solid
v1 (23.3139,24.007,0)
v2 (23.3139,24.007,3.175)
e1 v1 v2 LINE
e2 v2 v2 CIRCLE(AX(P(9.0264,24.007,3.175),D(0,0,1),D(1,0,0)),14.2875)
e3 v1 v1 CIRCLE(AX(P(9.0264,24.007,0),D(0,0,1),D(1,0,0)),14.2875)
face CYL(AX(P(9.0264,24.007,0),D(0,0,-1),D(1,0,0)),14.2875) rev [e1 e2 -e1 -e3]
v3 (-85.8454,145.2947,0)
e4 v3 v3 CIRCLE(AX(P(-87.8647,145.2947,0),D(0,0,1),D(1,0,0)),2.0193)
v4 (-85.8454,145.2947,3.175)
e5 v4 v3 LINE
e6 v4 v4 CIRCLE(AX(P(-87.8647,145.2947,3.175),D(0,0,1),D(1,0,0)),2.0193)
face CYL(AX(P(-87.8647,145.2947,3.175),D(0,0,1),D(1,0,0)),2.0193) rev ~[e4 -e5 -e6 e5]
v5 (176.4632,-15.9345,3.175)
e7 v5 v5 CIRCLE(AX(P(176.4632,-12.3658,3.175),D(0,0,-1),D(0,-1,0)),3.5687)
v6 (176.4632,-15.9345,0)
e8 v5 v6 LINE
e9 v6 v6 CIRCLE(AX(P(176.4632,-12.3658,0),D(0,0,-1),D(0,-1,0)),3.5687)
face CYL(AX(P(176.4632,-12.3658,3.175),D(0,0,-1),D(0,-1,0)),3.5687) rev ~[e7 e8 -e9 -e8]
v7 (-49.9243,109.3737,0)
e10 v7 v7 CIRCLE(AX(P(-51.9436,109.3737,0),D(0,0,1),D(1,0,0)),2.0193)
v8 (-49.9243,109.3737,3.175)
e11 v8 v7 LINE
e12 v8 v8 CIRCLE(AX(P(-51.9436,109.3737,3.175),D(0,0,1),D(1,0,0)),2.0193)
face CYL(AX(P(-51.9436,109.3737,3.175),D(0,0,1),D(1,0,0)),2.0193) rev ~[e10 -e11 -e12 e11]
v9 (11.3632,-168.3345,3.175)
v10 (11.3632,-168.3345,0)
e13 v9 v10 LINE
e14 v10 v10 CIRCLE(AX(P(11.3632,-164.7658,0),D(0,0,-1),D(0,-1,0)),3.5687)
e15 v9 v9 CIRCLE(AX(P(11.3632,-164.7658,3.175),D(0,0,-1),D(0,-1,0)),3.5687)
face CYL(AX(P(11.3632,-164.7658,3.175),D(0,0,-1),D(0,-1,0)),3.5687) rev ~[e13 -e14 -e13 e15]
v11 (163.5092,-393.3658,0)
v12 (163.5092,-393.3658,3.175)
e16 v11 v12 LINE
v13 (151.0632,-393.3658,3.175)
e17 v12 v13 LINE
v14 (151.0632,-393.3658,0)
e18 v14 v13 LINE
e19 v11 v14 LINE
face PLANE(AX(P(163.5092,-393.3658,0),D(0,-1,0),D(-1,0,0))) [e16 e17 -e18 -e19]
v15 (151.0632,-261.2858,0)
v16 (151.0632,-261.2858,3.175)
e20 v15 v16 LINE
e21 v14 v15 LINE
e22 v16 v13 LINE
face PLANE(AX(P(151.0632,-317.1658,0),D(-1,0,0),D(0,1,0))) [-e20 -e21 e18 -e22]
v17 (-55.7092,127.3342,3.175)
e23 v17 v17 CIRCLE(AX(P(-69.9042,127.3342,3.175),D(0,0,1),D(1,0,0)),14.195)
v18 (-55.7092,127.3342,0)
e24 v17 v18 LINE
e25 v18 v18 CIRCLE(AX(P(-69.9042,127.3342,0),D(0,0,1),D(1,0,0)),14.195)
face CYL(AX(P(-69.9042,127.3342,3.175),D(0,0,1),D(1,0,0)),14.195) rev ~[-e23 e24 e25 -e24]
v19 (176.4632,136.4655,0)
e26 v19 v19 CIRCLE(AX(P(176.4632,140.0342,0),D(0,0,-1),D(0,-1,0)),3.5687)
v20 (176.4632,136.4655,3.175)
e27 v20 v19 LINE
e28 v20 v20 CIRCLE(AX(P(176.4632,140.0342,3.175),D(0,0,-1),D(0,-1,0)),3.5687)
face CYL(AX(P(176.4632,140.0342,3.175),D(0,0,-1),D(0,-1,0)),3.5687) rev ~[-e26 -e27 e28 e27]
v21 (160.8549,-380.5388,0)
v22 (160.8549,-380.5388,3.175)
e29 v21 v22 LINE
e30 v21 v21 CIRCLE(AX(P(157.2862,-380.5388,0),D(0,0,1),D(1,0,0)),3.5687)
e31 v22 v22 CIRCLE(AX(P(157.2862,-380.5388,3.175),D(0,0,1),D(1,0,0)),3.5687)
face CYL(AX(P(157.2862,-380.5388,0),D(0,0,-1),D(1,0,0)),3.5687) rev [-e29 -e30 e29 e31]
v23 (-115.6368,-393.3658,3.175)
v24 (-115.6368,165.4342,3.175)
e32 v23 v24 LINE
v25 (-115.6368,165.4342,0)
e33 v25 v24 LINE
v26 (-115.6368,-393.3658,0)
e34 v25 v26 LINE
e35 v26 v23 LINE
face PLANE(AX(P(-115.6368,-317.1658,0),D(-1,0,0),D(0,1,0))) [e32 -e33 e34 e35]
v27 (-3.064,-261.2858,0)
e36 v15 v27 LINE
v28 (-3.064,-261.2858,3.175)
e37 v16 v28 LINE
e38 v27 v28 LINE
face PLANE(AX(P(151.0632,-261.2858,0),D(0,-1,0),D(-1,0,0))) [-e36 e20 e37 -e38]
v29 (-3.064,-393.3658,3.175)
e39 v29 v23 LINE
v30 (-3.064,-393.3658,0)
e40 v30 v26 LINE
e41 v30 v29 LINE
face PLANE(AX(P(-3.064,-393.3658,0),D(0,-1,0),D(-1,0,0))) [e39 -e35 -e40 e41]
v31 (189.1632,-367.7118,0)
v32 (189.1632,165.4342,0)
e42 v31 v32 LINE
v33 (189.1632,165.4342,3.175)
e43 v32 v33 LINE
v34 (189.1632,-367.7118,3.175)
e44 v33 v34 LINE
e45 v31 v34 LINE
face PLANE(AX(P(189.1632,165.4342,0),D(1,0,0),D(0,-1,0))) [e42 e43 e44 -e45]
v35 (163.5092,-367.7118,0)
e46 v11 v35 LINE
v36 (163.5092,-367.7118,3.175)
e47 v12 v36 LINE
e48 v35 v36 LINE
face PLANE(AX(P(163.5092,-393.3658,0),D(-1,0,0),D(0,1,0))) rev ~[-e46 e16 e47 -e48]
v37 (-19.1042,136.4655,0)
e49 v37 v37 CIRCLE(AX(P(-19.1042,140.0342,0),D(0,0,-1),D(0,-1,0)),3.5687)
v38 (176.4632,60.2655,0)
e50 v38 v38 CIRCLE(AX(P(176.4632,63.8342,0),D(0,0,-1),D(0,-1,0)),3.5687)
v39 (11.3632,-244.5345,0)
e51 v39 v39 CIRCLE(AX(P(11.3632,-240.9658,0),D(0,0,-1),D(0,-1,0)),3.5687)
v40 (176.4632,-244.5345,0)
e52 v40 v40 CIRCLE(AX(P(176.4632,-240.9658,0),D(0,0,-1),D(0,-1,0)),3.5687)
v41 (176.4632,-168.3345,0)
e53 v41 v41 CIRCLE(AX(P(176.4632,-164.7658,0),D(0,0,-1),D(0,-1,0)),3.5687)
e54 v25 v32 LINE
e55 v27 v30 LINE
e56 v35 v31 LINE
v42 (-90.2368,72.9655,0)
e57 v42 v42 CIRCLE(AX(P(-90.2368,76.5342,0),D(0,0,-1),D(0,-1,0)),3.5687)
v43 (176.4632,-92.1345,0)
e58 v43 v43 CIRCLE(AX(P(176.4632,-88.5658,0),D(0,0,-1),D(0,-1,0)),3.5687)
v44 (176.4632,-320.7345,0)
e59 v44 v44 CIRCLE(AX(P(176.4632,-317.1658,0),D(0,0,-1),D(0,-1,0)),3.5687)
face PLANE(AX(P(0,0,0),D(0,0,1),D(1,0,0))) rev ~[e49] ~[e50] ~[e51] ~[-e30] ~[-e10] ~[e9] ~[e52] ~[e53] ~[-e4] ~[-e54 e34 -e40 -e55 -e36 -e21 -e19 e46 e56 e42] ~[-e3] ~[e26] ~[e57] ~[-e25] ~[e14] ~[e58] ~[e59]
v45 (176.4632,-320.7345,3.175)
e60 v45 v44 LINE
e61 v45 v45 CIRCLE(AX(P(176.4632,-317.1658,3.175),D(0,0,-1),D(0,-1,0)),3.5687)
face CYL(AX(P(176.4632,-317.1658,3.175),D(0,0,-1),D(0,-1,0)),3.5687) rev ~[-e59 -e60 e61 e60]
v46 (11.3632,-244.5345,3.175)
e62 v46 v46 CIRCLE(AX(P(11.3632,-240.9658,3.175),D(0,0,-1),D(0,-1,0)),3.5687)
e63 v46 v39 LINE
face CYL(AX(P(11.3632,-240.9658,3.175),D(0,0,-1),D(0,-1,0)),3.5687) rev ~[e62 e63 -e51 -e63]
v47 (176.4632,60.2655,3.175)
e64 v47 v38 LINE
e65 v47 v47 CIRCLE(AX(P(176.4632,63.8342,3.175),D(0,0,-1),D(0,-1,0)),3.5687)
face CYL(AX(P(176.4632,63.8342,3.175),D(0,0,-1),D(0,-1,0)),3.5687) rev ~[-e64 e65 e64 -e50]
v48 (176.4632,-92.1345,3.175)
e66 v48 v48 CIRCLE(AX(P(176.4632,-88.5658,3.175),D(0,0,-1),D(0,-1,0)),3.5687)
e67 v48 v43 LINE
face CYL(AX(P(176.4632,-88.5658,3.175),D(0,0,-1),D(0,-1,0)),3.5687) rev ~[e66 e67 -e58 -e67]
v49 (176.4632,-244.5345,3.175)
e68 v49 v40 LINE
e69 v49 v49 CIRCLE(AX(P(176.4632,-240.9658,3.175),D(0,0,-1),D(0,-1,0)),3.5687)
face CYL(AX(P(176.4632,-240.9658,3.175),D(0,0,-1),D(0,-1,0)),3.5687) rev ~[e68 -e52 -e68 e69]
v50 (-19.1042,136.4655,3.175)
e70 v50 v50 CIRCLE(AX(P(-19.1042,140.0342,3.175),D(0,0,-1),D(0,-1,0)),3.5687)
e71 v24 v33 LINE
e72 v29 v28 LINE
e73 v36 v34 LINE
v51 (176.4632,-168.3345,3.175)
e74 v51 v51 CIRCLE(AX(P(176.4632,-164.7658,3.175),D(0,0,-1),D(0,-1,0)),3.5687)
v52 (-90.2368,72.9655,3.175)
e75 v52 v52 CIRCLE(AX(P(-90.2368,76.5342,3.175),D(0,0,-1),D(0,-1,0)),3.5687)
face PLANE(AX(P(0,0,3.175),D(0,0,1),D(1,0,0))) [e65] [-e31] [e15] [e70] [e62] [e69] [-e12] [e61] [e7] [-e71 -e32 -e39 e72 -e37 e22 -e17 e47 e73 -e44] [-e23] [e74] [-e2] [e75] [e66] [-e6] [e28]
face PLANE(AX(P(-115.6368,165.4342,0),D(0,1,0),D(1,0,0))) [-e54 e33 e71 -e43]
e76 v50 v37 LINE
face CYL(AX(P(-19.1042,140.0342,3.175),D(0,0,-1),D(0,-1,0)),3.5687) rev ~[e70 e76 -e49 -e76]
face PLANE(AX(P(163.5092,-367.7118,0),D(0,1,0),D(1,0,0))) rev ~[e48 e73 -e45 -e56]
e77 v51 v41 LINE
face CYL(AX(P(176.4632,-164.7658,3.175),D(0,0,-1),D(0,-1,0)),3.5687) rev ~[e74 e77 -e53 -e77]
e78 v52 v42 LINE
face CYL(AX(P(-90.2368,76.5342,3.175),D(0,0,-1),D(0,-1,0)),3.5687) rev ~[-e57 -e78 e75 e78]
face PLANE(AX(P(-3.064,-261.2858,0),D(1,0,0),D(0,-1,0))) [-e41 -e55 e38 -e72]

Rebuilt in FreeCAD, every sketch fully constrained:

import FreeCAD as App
import Part
import Sketcher

V = App.Vector
Q = App.Units.Quantity


def add_polygon(sketch, points):
    """Adds a closed chain of lines whose ends are joined by coincident constraints."""
    first, n = sketch.GeometryCount, len(points)
    for a, b in zip(points, points[1:] + points[:1]):
        sketch.addGeometry(Part.LineSegment(App.Vector(*a, 0), App.Vector(*b, 0)), False)
    for i in range(n):
        sketch.addConstraint(Sketcher.Constraint("Coincident", first + i, 2, first + (i + 1) % n, 1))

doc = App.newDocument("Part")
body = doc.addObject("PartDesign::Body", "Body")

# Sketch on XY plane
sketch1 = doc.addObject("Sketcher::SketchObject", "Sketch")
body.addObject(sketch1)
sketch1.AttachmentSupport = (doc.XY_Plane, [""])
sketch1.MapMode = "FlatFace"
add_polygon(sketch1, [(189.1632, 165.4342), (-115.6368, 165.4342), (-115.6368, -393.3658), (-3.064, -393.3658), (-3.064, -261.2858), (151.0632, -261.2858), (151.0632, -393.3658), (163.5092, -393.3658), (163.5092, -367.7118), (189.1632, -367.7118)])  # lines 0-9
sketch1.addGeometry(Part.Circle(V(9.0264, 24.007, 0), V(0, 0, 1), 14.2875), False)  # 10
sketch1.addGeometry(Part.Circle(V(157.2862, -380.5388, 0), V(0, 0, 1), 3.5687), False)  # 11
sketch1.addConstraint(Sketcher.Constraint("Horizontal", 0))
sketch1.addConstraint(Sketcher.Constraint("Vertical", 1))
sketch1.addConstraint(Sketcher.Constraint("Horizontal", 2))
sketch1.addConstraint(Sketcher.Constraint("Vertical", 3))
sketch1.addConstraint(Sketcher.Constraint("Horizontal", 4))
sketch1.addConstraint(Sketcher.Constraint("Vertical", 5))
sketch1.addConstraint(Sketcher.Constraint("Horizontal", 6))
sketch1.addConstraint(Sketcher.Constraint("Vertical", 7))
sketch1.addConstraint(Sketcher.Constraint("Horizontal", 8))
sketch1.addConstraint(Sketcher.Constraint("Vertical", 9))
sketch1.addConstraint(Sketcher.Constraint("Horizontal", 2, 2, 5, 2))
sketch1.addConstraint(Sketcher.Constraint("Equal", 8, 7))
sketch1.addConstraint(Sketcher.Constraint("DistanceX", 0, 2, 0, 1, Q("12 in")))
sketch1.addConstraint(Sketcher.Constraint("DistanceY", 1, 2, 1, 1, Q("22 in")))
sketch1.addConstraint(Sketcher.Constraint("Diameter", 10, Q("1.125 in")))
sketch1.addConstraint(Sketcher.Constraint("Diameter", 11, Q("0.281 in")))
sketch1.addConstraint(Sketcher.Constraint("DistanceY", 3, 1, 3, 2, Q("5.2 in")))
sketch1.addConstraint(Sketcher.Constraint("DistanceX", 6, 1, 6, 2, Q("0.49 in")))
sketch1.addConstraint(Sketcher.Constraint("DistanceX", 8, 1, 8, 2, Q("1.01 in")))
sketch1.addConstraint(Sketcher.Constraint("DistanceX", 4, 1, 4, 2, Q("6.068 in")))
sketch1.addConstraint(Sketcher.Constraint("DistanceY", 1, 2, 11, 3, Q("0.505 in")))
sketch1.addConstraint(Sketcher.Constraint("DistanceY", 1, 2, 10, 3, Q("16.432 in")))
sketch1.addConstraint(Sketcher.Constraint("DistanceX", 4, 2, 11, 3, Q("0.245 in")))
sketch1.addConstraint(Sketcher.Constraint("DistanceX", 10, 3, 9, 2, Q("7.092 in")))
sketch1.addConstraint(Sketcher.Constraint("DistanceX", -1, 1, 10, 3, Q("9.0264 mm")))
sketch1.addConstraint(Sketcher.Constraint("DistanceY", -1, 1, 10, 3, Q("24.007 mm")))
pad1 = doc.addObject("PartDesign::Pad", "Pad")
body.addObject(pad1)
pad1.Profile = sketch1
pad1.Length = Q("0.125 in")

# Sketch on XY plane
sketch2 = doc.addObject("Sketcher::SketchObject", "Sketch001")
body.addObject(sketch2)
sketch2.AttachmentSupport = (doc.XY_Plane, [""])
sketch2.MapMode = "FlatFace"
sketch2.AttachmentOffset = App.Placement(V(0, 0, 0.125 * 25.4), App.Rotation())
sketch2.addGeometry(Part.Circle(V(176.4632, -317.1658, 0), V(0, 0, 1), 3.5687), False)
sketch2.addGeometry(Part.Circle(V(176.4632, -240.9658, 0), V(0, 0, 1), 3.5687), False)
sketch2.addGeometry(Part.Circle(V(176.4632, -164.7658, 0), V(0, 0, 1), 3.5687), False)
sketch2.addGeometry(Part.Circle(V(176.4632, -88.5658, 0), V(0, 0, 1), 3.5687), False)
sketch2.addGeometry(Part.Circle(V(176.4632, -12.3658, 0), V(0, 0, 1), 3.5687), False)
sketch2.addGeometry(Part.Circle(V(176.4632, 63.8342, 0), V(0, 0, 1), 3.5687), False)
sketch2.addGeometry(Part.Circle(V(176.4632, 140.0342, 0), V(0, 0, 1), 3.5687), False)
sketch2.addGeometry(Part.Circle(V(11.3632, -240.9658, 0), V(0, 0, 1), 3.5687), False)
sketch2.addGeometry(Part.Circle(V(11.3632, -164.7658, 0), V(0, 0, 1), 3.5687), False)
sketch2.addConstraint(Sketcher.Constraint("Equal", 0, 1))
sketch2.addConstraint(Sketcher.Constraint("Equal", 1, 2))
sketch2.addConstraint(Sketcher.Constraint("Equal", 2, 3))
sketch2.addConstraint(Sketcher.Constraint("Equal", 3, 4))
sketch2.addConstraint(Sketcher.Constraint("Equal", 4, 5))
sketch2.addConstraint(Sketcher.Constraint("Equal", 5, 6))
sketch2.addConstraint(Sketcher.Constraint("Equal", 6, 7))
sketch2.addConstraint(Sketcher.Constraint("Equal", 7, 8))
sketch2.addConstraint(Sketcher.Constraint("Horizontal", 1, 3, 7, 3))
sketch2.addConstraint(Sketcher.Constraint("Horizontal", 2, 3, 8, 3))
sketch2.addConstraint(Sketcher.Constraint("Vertical", 0, 3, 1, 3))
sketch2.addConstraint(Sketcher.Constraint("Vertical", 1, 3, 2, 3))
sketch2.addConstraint(Sketcher.Constraint("Vertical", 2, 3, 3, 3))
sketch2.addConstraint(Sketcher.Constraint("Vertical", 3, 3, 4, 3))
sketch2.addConstraint(Sketcher.Constraint("Vertical", 4, 3, 5, 3))
sketch2.addConstraint(Sketcher.Constraint("Vertical", 5, 3, 6, 3))
sketch2.addConstraint(Sketcher.Constraint("Vertical", 7, 3, 8, 3))
sketch2.addConstraint(Sketcher.Constraint("Diameter", 0, Q("0.281 in")))
sketch2.addConstraint(Sketcher.Constraint("DistanceY", 0, 3, 1, 3, Q("3 in")))
sketch2.addConstraint(Sketcher.Constraint("DistanceY", 1, 3, 2, 3, Q("3 in")))
sketch2.addConstraint(Sketcher.Constraint("DistanceY", 2, 3, 3, 3, Q("3 in")))
sketch2.addConstraint(Sketcher.Constraint("DistanceY", 3, 3, 4, 3, Q("3 in")))
sketch2.addConstraint(Sketcher.Constraint("DistanceY", 4, 3, 5, 3, Q("3 in")))
sketch2.addConstraint(Sketcher.Constraint("DistanceY", 5, 3, 6, 3, Q("3 in")))
sketch2.addConstraint(Sketcher.Constraint("DistanceX", 7, 3, 1, 3, Q("6.5 in")))
sketch2.addConstraint(Sketcher.Constraint("DistanceX", -1, 1, 0, 3, Q("176.4632 mm")))
sketch2.addConstraint(Sketcher.Constraint("DistanceY", 0, 3, -1, 1, Q("317.1658 mm")))
doc.recompute()
hole = doc.addObject("PartDesign::Hole", "Hole")
body.addObject(hole)
hole.Profile = sketch2
hole.ThreadType = "None"
hole.Diameter = Q("0.281 in")
hole.DepthType = "ThroughAll"

# Sketch on XY plane
sketch3 = doc.addObject("Sketcher::SketchObject", "Sketch002")
body.addObject(sketch3)
sketch3.AttachmentSupport = (doc.XY_Plane, [""])
sketch3.MapMode = "FlatFace"
sketch3.AttachmentOffset = App.Placement(V(0, 0, 0.125 * 25.4), App.Rotation())
sketch3.addGeometry(Part.Circle(V(-69.9042, 127.3342, 0), V(0, 0, 1), 14.195), False)
sketch3.addGeometry(Part.Circle(V(-87.8647, 145.2947, 0), V(0, 0, 1), 2.0193), False)
sketch3.addGeometry(Part.Circle(V(-51.9436, 109.3737, 0), V(0, 0, 1), 2.0193), False)
sketch3.addConstraint(Sketcher.Constraint("Equal", 1, 2))
sketch3.addConstraint(Sketcher.Constraint("Diameter", 1, Q("0.159 in")))
sketch3.addConstraint(Sketcher.Constraint("Diameter", 0, Q("28.39 mm")))
sketch3.addConstraint(Sketcher.Constraint("DistanceX", 1, 3, 0, 3, Q("0.7071 in")))
sketch3.addConstraint(Sketcher.Constraint("DistanceY", 0, 3, 1, 3, Q("0.7071 in")))
sketch3.addConstraint(Sketcher.Constraint("DistanceX", 0, 3, 2, 3, Q("0.7071 in")))
sketch3.addConstraint(Sketcher.Constraint("DistanceY", 2, 3, 0, 3, Q("0.7071 in")))
sketch3.addConstraint(Sketcher.Constraint("DistanceX", 0, 3, -1, 1, Q("69.9042 mm")))
sketch3.addConstraint(Sketcher.Constraint("DistanceY", -1, 1, 0, 3, Q("127.3342 mm")))
pocket1 = doc.addObject("PartDesign::Pocket", "Pocket")
body.addObject(pocket1)
pocket1.Profile = sketch3
pocket1.Length = Q("1 in")

# Sketch on XY plane
sketch4 = doc.addObject("Sketcher::SketchObject", "Sketch003")
body.addObject(sketch4)
sketch4.AttachmentSupport = (doc.XY_Plane, [""])
sketch4.MapMode = "FlatFace"
sketch4.AttachmentOffset = App.Placement(V(0, 0, 0.125 * 25.4), App.Rotation())
sketch4.addGeometry(Part.Circle(V(-90.2368, 76.5342, 0), V(0, 0, 1), 3.5687), False)
sketch4.addGeometry(Part.Circle(V(-19.1042, 140.0342, 0), V(0, 0, 1), 3.5687), False)
sketch4.addConstraint(Sketcher.Constraint("Equal", 0, 1))
sketch4.addConstraint(Sketcher.Constraint("Diameter", 0, Q("0.281 in")))
sketch4.addConstraint(Sketcher.Constraint("DistanceY", 0, 3, 1, 3, Q("2.5 in")))
sketch4.addConstraint(Sketcher.Constraint("DistanceX", 0, 3, 1, 3, Q("2.8005 in")))
sketch4.addConstraint(Sketcher.Constraint("DistanceX", 0, 3, -1, 1, Q("90.2368 mm")))
sketch4.addConstraint(Sketcher.Constraint("DistanceY", -1, 1, 0, 3, Q("76.5342 mm")))
doc.recompute()
hole2 = doc.addObject("PartDesign::Hole", "Hole001")
body.addObject(hole2)
hole2.Profile = sketch4
hole2.ThreadType = "None"
hole2.Diameter = Q("0.281 in")
hole2.DepthType = "ThroughAll"

doc.recompute()
